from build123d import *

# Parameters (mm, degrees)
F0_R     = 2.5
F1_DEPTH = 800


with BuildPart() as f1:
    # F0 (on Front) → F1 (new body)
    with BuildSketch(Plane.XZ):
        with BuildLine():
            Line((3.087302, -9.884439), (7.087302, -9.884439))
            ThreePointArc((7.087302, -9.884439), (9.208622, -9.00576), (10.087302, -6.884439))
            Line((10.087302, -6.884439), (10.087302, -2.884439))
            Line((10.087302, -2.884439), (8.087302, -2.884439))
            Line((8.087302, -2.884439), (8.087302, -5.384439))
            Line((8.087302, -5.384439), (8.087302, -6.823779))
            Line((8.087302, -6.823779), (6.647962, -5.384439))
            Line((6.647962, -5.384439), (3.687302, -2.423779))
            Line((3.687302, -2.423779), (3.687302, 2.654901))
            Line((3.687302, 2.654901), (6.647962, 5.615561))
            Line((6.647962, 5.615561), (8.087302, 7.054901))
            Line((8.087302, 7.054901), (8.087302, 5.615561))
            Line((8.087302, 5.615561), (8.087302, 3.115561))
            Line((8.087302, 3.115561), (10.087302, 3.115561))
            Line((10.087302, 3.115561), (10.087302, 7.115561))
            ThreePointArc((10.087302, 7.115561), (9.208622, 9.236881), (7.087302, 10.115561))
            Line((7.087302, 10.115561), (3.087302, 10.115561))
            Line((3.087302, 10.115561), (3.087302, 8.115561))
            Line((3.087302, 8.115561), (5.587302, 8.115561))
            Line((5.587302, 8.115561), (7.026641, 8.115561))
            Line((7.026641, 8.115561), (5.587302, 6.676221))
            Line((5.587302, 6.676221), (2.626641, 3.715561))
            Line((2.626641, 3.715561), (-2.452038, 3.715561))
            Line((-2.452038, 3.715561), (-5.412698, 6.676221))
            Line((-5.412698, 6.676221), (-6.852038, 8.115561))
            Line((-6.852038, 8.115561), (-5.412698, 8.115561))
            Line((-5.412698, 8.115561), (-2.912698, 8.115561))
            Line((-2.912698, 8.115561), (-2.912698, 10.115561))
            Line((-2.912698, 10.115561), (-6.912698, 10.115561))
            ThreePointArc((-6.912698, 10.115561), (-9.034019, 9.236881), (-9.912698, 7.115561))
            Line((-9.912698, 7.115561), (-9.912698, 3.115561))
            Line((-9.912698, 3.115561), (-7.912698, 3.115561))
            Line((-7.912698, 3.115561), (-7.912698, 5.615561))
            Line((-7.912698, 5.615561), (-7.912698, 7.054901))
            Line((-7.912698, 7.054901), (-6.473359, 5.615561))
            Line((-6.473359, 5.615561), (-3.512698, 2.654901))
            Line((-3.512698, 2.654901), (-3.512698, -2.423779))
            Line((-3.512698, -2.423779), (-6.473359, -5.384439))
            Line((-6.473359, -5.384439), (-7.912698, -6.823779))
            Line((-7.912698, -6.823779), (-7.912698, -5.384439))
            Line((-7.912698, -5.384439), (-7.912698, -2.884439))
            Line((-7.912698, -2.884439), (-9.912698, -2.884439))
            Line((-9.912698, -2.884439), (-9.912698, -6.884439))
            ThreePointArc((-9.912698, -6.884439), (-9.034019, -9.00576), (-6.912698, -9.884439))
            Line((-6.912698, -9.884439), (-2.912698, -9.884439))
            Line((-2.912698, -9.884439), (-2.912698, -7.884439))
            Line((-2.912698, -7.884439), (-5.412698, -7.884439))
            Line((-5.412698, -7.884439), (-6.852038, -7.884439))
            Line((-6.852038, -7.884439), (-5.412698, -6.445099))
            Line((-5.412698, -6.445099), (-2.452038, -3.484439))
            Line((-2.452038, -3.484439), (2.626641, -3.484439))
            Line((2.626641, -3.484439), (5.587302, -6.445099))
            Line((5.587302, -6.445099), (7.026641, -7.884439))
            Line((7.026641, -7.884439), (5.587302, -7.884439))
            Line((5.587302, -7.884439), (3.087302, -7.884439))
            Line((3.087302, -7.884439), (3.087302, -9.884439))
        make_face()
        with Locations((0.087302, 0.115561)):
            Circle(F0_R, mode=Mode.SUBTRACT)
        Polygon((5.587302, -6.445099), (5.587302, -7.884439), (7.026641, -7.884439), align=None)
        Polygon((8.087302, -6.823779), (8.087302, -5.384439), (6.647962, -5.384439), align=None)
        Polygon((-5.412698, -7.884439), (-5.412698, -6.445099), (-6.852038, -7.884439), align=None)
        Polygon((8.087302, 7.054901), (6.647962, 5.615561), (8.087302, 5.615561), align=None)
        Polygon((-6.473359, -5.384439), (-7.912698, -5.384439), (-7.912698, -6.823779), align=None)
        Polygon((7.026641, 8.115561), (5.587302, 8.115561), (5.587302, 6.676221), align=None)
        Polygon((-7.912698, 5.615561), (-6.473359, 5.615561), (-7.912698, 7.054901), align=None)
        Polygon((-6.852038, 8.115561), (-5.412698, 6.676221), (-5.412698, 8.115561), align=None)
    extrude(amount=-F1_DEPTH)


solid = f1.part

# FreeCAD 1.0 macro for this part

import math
import FreeCAD as App
import Part
import Sketcher
Q = App.Units.Quantity

doc = App.newDocument("Part")
body = doc.addObject("PartDesign::Body", "Body")

# Sketch on XZ plane
sketch1 = body.newObject("Sketcher::SketchObject", "Sketch")
sketch1.AttachmentSupport = (doc.getObject("XZ_Plane"), [""])
sketch1.MapMode = "FlatFace"
sketch1.addGeometry(Part.LineSegment(App.Vector(3.1, -9.9, 0), App.Vector(7.1, -9.9, 0)), False)
sketch1.addGeometry(Part.ArcOfCircle(Part.Circle(App.Vector(7.1, -6.9, 0), App.Vector(0, 0, 1), 3), math.radians(-90), math.radians(0)), False)
sketch1.addGeometry(Part.LineSegment(App.Vector(10.1, -6.9, 0), App.Vector(10.1, -2.9, 0)), False)
sketch1.addGeometry(Part.LineSegment(App.Vector(10.1, -2.9, 0), App.Vector(8.1, -2.9, 0)), False)
sketch1.addGeometry(Part.LineSegment(App.Vector(8.1, -2.9, 0), App.Vector(8.1, -5.4, 0)), False)
sketch1.addGeometry(Part.LineSegment(App.Vector(8.1, -5.4, 0), App.Vector(6.6, -5.4, 0)), False)
sketch1.addGeometry(Part.LineSegment(App.Vector(6.6, -5.4, 0), App.Vector(3.7, -2.4, 0)), False)
sketch1.addGeometry(Part.LineSegment(App.Vector(3.7, -2.4, 0), App.Vector(3.7, 2.7, 0)), False)
sketch1.addGeometry(Part.LineSegment(App.Vector(3.7, 2.7, 0), App.Vector(6.6, 5.6, 0)), False)
sketch1.addGeometry(Part.LineSegment(App.Vector(6.6, 5.6, 0), App.Vector(8.1, 5.6, 0)), False)
sketch1.addGeometry(Part.LineSegment(App.Vector(8.1, 5.6, 0), App.Vector(8.1, 3.1, 0)), False)
sketch1.addGeometry(Part.LineSegment(App.Vector(8.1, 3.1, 0), App.Vector(10.1, 3.1, 0)), False)
sketch1.addGeometry(Part.LineSegment(App.Vector(10.1, 3.1, 0), App.Vector(10.1, 7.1, 0)), False)
sketch1.addGeometry(Part.ArcOfCircle(Part.Circle(App.Vector(7.1, 7.1, 0), App.Vector(0, 0, 1), 3), math.radians(0), math.radians(90)), False)
sketch1.addGeometry(Part.LineSegment(App.Vector(7.1, 10.1, 0), App.Vector(3.1, 10.1, 0)), False)
sketch1.addGeometry(Part.LineSegment(App.Vector(3.1, 10.1, 0), App.Vector(3.1, 8.1, 0)), False)
sketch1.addGeometry(Part.LineSegment(App.Vector(3.1, 8.1, 0), App.Vector(5.6, 8.1, 0)), False)
sketch1.addGeometry(Part.LineSegment(App.Vector(5.6, 8.1, 0), App.Vector(5.6, 6.7, 0)), False)
sketch1.addGeometry(Part.LineSegment(App.Vector(5.6, 6.7, 0), App.Vector(2.6, 3.7, 0)), False)
sketch1.addGeometry(Part.LineSegment(App.Vector(2.6, 3.7, 0), App.Vector(-2.5, 3.7, 0)), False)
sketch1.addGeometry(Part.LineSegment(App.Vector(-2.5, 3.7, 0), App.Vector(-5.4, 6.7, 0)), False)
sketch1.addGeometry(Part.LineSegment(App.Vector(-5.4, 6.7, 0), App.Vector(-5.4, 8.1, 0)), False)
sketch1.addGeometry(Part.LineSegment(App.Vector(-5.4, 8.1, 0), App.Vector(-2.9, 8.1, 0)), False)
sketch1.addGeometry(Part.LineSegment(App.Vector(-2.9, 8.1, 0), App.Vector(-2.9, 10.1, 0)), False)
sketch1.addGeometry(Part.LineSegment(App.Vector(-2.9, 10.1, 0), App.Vector(-6.9, 10.1, 0)), False)
sketch1.addGeometry(Part.ArcOfCircle(Part.Circle(App.Vector(-6.9, 7.1, 0), App.Vector(0, 0, 1), 3), math.radians(90), math.radians(180)), False)
sketch1.addGeometry(Part.LineSegment(App.Vector(-9.9, 7.1, 0), App.Vector(-9.9, 3.1, 0)), False)
sketch1.addGeometry(Part.LineSegment(App.Vector(-9.9, 3.1, 0), App.Vector(-7.9, 3.1, 0)), False)
sketch1.addGeometry(Part.LineSegment(App.Vector(-7.9, 3.1, 0), App.Vector(-7.9, 5.6, 0)), False)
sketch1.addGeometry(Part.LineSegment(App.Vector(-7.9, 5.6, 0), App.Vector(-6.5, 5.6, 0)), False)
sketch1.addGeometry(Part.LineSegment(App.Vector(-6.5, 5.6, 0), App.Vector(-3.5, 2.7, 0)), False)
sketch1.addGeometry(Part.LineSegment(App.Vector(-3.5, 2.7, 0), App.Vector(-3.5, -2.4, 0)), False)
sketch1.addGeometry(Part.LineSegment(App.Vector(-3.5, -2.4, 0), App.Vector(-6.5, -5.4, 0)), False)
sketch1.addGeometry(Part.LineSegment(App.Vector(-6.5, -5.4, 0), App.Vector(-7.9, -5.4, 0)), False)
sketch1.addGeometry(Part.LineSegment(App.Vector(-7.9, -5.4, 0), App.Vector(-7.9, -2.9, 0)), False)
sketch1.addGeometry(Part.LineSegment(App.Vector(-7.9, -2.9, 0), App.Vector(-9.9, -2.9, 0)), False)
sketch1.addGeometry(Part.LineSegment(App.Vector(-9.9, -2.9, 0), App.Vector(-9.9, -6.9, 0)), False)
sketch1.addGeometry(Part.ArcOfCircle(Part.Circle(App.Vector(-6.9, -6.9, 0), App.Vector(0, 0, 1), 3), math.radians(180), math.radians(270)), False)
sketch1.addGeometry(Part.LineSegment(App.Vector(-6.9, -9.9, 0), App.Vector(-2.9, -9.9, 0)), False)
sketch1.addGeometry(Part.LineSegment(App.Vector(-2.9, -9.9, 0), App.Vector(-2.9, -7.9, 0)), False)
sketch1.addGeometry(Part.LineSegment(App.Vector(-2.9, -7.9, 0), App.Vector(-5.4, -7.9, 0)), False)
sketch1.addGeometry(Part.LineSegment(App.Vector(-5.4, -7.9, 0), App.Vector(-5.4, -6.4, 0)), False)
sketch1.addGeometry(Part.LineSegment(App.Vector(-5.4, -6.4, 0), App.Vector(-2.5, -3.5, 0)), False)
sketch1.addGeometry(Part.LineSegment(App.Vector(-2.5, -3.5, 0), App.Vector(2.6, -3.5, 0)), False)
sketch1.addGeometry(Part.LineSegment(App.Vector(2.6, -3.5, 0), App.Vector(5.6, -6.4, 0)), False)
sketch1.addGeometry(Part.LineSegment(App.Vector(5.6, -6.4, 0), App.Vector(5.6, -7.9, 0)), False)
sketch1.addGeometry(Part.LineSegment(App.Vector(5.6, -7.9, 0), App.Vector(3.1, -7.9, 0)), False)
sketch1.addGeometry(Part.LineSegment(App.Vector(3.1, -7.9, 0), App.Vector(3.1, -9.9, 0)), False)
sketch1.addGeometry(Part.Circle(App.Vector(0.1, 0.1, 0), App.Vector(0, 0, 1), 2.5), False)
sketch1.addConstraint(Sketcher.Constraint("Tangent", 0, 2, 1, 1))
sketch1.addConstraint(Sketcher.Constraint("Tangent", 1, 2, 2, 1))
sketch1.addConstraint(Sketcher.Constraint("Coincident", 2, 2, 3, 1))
sketch1.addConstraint(Sketcher.Constraint("Coincident", 3, 2, 4, 1))
sketch1.addConstraint(Sketcher.Constraint("Coincident", 4, 2, 5, 1))
sketch1.addConstraint(Sketcher.Constraint("Coincident", 5, 2, 6, 1))
sketch1.addConstraint(Sketcher.Constraint("Coincident", 6, 2, 7, 1))
sketch1.addConstraint(Sketcher.Constraint("Coincident", 7, 2, 8, 1))
sketch1.addConstraint(Sketcher.Constraint("Coincident", 8, 2, 9, 1))
sketch1.addConstraint(Sketcher.Constraint("Coincident", 9, 2, 10, 1))
sketch1.addConstraint(Sketcher.Constraint("Coincident", 10, 2, 11, 1))
sketch1.addConstraint(Sketcher.Constraint("Coincident", 11, 2, 12, 1))
sketch1.addConstraint(Sketcher.Constraint("Tangent", 12, 2, 13, 1))
sketch1.addConstraint(Sketcher.Constraint("Tangent", 13, 2, 14, 1))
sketch1.addConstraint(Sketcher.Constraint("Coincident", 14, 2, 15, 1))
sketch1.addConstraint(Sketcher.Constraint("Coincident", 15, 2, 16, 1))
sketch1.addConstraint(Sketcher.Constraint("Coincident", 16, 2, 17, 1))
sketch1.addConstraint(Sketcher.Constraint("Coincident", 17, 2, 18, 1))
sketch1.addConstraint(Sketcher.Constraint("Coincident", 18, 2, 19, 1))
sketch1.addConstraint(Sketcher.Constraint("Coincident", 19, 2, 20, 1))
sketch1.addConstraint(Sketcher.Constraint("Coincident", 20, 2, 21, 1))
sketch1.addConstraint(Sketcher.Constraint("Coincident", 21, 2, 22, 1))
sketch1.addConstraint(Sketcher.Constraint("Coincident", 22, 2, 23, 1))
sketch1.addConstraint(Sketcher.Constraint("Coincident", 23, 2, 24, 1))
sketch1.addConstraint(Sketcher.Constraint("Tangent", 24, 2, 25, 1))
sketch1.addConstraint(Sketcher.Constraint("Tangent", 25, 2, 26, 1))
sketch1.addConstraint(Sketcher.Constraint("Coincident", 26, 2, 27, 1))
sketch1.addConstraint(Sketcher.Constraint("Coincident", 27, 2, 28, 1))
sketch1.addConstraint(Sketcher.Constraint("Coincident", 28, 2, 29, 1))
sketch1.addConstraint(Sketcher.Constraint("Coincident", 29, 2, 30, 1))
sketch1.addConstraint(Sketcher.Constraint("Coincident", 30, 2, 31, 1))
sketch1.addConstraint(Sketcher.Constraint("Coincident", 31, 2, 32, 1))
sketch1.addConstraint(Sketcher.Constraint("Coincident", 32, 2, 33, 1))
sketch1.addConstraint(Sketcher.Constraint("Coincident", 33, 2, 34, 1))
sketch1.addConstraint(Sketcher.Constraint("Coincident", 34, 2, 35, 1))
sketch1.addConstraint(Sketcher.Constraint("Coincident", 35, 2, 36, 1))
sketch1.addConstraint(Sketcher.Constraint("Tangent", 36, 2, 37, 1))
sketch1.addConstraint(Sketcher.Constraint("Tangent", 37, 2, 38, 1))
sketch1.addConstraint(Sketcher.Constraint("Coincident", 38, 2, 39, 1))
sketch1.addConstraint(Sketcher.Constraint("Coincident", 39, 2, 40, 1))
sketch1.addConstraint(Sketcher.Constraint("Coincident", 40, 2, 41, 1))
sketch1.addConstraint(Sketcher.Constraint("Coincident", 41, 2, 42, 1))
sketch1.addConstraint(Sketcher.Constraint("Coincident", 42, 2, 43, 1))
sketch1.addConstraint(Sketcher.Constraint("Coincident", 43, 2, 44, 1))
sketch1.addConstraint(Sketcher.Constraint("Coincident", 44, 2, 45, 1))
sketch1.addConstraint(Sketcher.Constraint("Coincident", 45, 2, 46, 1))
sketch1.addConstraint(Sketcher.Constraint("Coincident", 46, 2, 47, 1))
sketch1.addConstraint(Sketcher.Constraint("Coincident", 47, 2, 0, 1))
sketch1.addConstraint(Sketcher.Constraint("Horizontal", 0))
sketch1.addConstraint(Sketcher.Constraint("Vertical", 2))
sketch1.addConstraint(Sketcher.Constraint("Horizontal", 3))
sketch1.addConstraint(Sketcher.Constraint("Vertical", 4))
sketch1.addConstraint(Sketcher.Constraint("Horizontal", 5))
sketch1.addConstraint(Sketcher.Constraint("Vertical", 7))
sketch1.addConstraint(Sketcher.Constraint("Horizontal", 9))
sketch1.addConstraint(Sketcher.Constraint("Vertical", 10))
sketch1.addConstraint(Sketcher.Constraint("Horizontal", 11))
sketch1.addConstraint(Sketcher.Constraint("Vertical", 12))
sketch1.addConstraint(Sketcher.Constraint("Horizontal", 14))
sketch1.addConstraint(Sketcher.Constraint("Vertical", 15))
sketch1.addConstraint(Sketcher.Constraint("Horizontal", 16))
sketch1.addConstraint(Sketcher.Constraint("Vertical", 17))
sketch1.addConstraint(Sketcher.Constraint("Horizontal", 19))
sketch1.addConstraint(Sketcher.Constraint("Vertical", 21))
sketch1.addConstraint(Sketcher.Constraint("Horizontal", 22))
sketch1.addConstraint(Sketcher.Constraint("Vertical", 23))
sketch1.addConstraint(Sketcher.Constraint("Horizontal", 24))
sketch1.addConstraint(Sketcher.Constraint("Vertical", 26))
sketch1.addConstraint(Sketcher.Constraint("Horizontal", 27))
sketch1.addConstraint(Sketcher.Constraint("Vertical", 28))
sketch1.addConstraint(Sketcher.Constraint("Horizontal", 29))
sketch1.addConstraint(Sketcher.Constraint("Vertical", 31))
sketch1.addConstraint(Sketcher.Constraint("Horizontal", 33))
sketch1.addConstraint(Sketcher.Constraint("Vertical", 34))
sketch1.addConstraint(Sketcher.Constraint("Horizontal", 35))
sketch1.addConstraint(Sketcher.Constraint("Vertical", 36))
sketch1.addConstraint(Sketcher.Constraint("Horizontal", 38))
sketch1.addConstraint(Sketcher.Constraint("Vertical", 39))
sketch1.addConstraint(Sketcher.Constraint("Horizontal", 40))
sketch1.addConstraint(Sketcher.Constraint("Vertical", 41))
sketch1.addConstraint(Sketcher.Constraint("Horizontal", 43))
sketch1.addConstraint(Sketcher.Constraint("Vertical", 45))
sketch1.addConstraint(Sketcher.Constraint("Horizontal", 46))
sketch1.addConstraint(Sketcher.Constraint("Vertical", 47))
sketch1.addConstraint(Sketcher.Constraint("Equal", 1, 13))
sketch1.addConstraint(Sketcher.Constraint("Equal", 13, 25))
sketch1.addConstraint(Sketcher.Constraint("Equal", 25, 37))
sketch1.addConstraint(Sketcher.Constraint("Perpendicular", 6, 8))
sketch1.addConstraint(Sketcher.Constraint("Parallel", 8, 18))
sketch1.addConstraint(Sketcher.Constraint("Perpendicular", 18, 20))
sketch1.addConstraint(Sketcher.Constraint("Parallel", 20, 30))
sketch1.addConstraint(Sketcher.Constraint("Perpendicular", 30, 32))
sketch1.addConstraint(Sketcher.Constraint("Parallel", 32, 42))
sketch1.addConstraint(Sketcher.Constraint("Perpendicular", 42, 44))
sketch1.addConstraint(Sketcher.Constraint("Horizontal", 13, 3, 25, 3))
sketch1.addConstraint(Sketcher.Constraint("Horizontal", 1, 3, 37, 3))
sketch1.addConstraint(Sketcher.Constraint("Horizontal", 17, 2, 20, 2))
sketch1.addConstraint(Sketcher.Constraint("Horizontal", 16, 2, 21, 2))
sketch1.addConstraint(Sketcher.Constraint("Horizontal", 11, 2, 26, 2))
sketch1.addConstraint(Sketcher.Constraint("Horizontal", 9, 2, 28, 2))
sketch1.addConstraint(Sketcher.Constraint("Horizontal", 7, 2, 30, 2))
sketch1.addConstraint(Sketcher.Constraint("Horizontal", 6, 2, 31, 2))
sketch1.addConstraint(Sketcher.Constraint("Horizontal", 5, 2, 32, 2))
sketch1.addConstraint(Sketcher.Constraint("Horizontal", 3, 2, 34, 2))
sketch1.addConstraint(Sketcher.Constraint("Horizontal", 41, 2, 44, 2))
sketch1.addConstraint(Sketcher.Constraint("Horizontal", 40, 2, 45, 2))
sketch1.addConstraint(Sketcher.Constraint("Vertical", 1, 3, 13, 3))
sketch1.addConstraint(Sketcher.Constraint("Vertical", 25, 3, 37, 3))
sketch1.addConstraint(Sketcher.Constraint("Vertical", 5, 2, 8, 2))
sketch1.addConstraint(Sketcher.Constraint("Vertical", 4, 2, 9, 2))
sketch1.addConstraint(Sketcher.Constraint("Vertical", 29, 2, 32, 2))
sketch1.addConstraint(Sketcher.Constraint("Vertical", 28, 2, 33, 2))
sketch1.addConstraint(Sketcher.Constraint("Vertical", 23, 2, 38, 2))
sketch1.addConstraint(Sketcher.Constraint("Vertical", 21, 2, 40, 2))
sketch1.addConstraint(Sketcher.Constraint("Vertical", 19, 2, 42, 2))
sketch1.addConstraint(Sketcher.Constraint("Vertical", 18, 2, 43, 2))
sketch1.addConstraint(Sketcher.Constraint("Vertical", 15, 2, 46, 2))
sketch1.addConstraint(Sketcher.Constraint("Equal", 16, 22))
sketch1.addConstraint(Sketcher.Constraint("Equal", 14, 24))
sketch1.addConstraint(Sketcher.Constraint("Equal", 11, 27))
sketch1.addConstraint(Sketcher.Constraint("Equal", 9, 29))
sketch1.addConstraint(Sketcher.Constraint("Equal", 38, 2))
sketch1.addConstraint(Sketcher.Constraint("Equal", 46, 4))
sketch1.addConstraint(Sketcher.Constraint("Equal", 43, 7))
sketch1.addConstraint(Sketcher.Constraint("Equal", 4, 10))
sketch1.addConstraint(Sketcher.Constraint("Equal", 2, 12))
sketch1.addConstraint(Sketcher.Constraint("Equal", 35, 15))
sketch1.addConstraint(Sketcher.Constraint("Equal", 33, 17))
sketch1.addConstraint(Sketcher.Constraint("Equal", 23, 39))
sketch1.addConstraint(Sketcher.Constraint("Equal", 21, 41))
sketch1.addConstraint(Sketcher.Constraint("Equal", 8, 18))
sketch1.addConstraint(Sketcher.Constraint("Diameter", 48, Q("5 mm")))
sketch1.addConstraint(Sketcher.Constraint("Radius", 1, Q("2.999999 mm")))
sketch1.addConstraint(Sketcher.Constraint("DistanceX", 0, 1, 0, 2, Q("4 mm")))
sketch1.addConstraint(Sketcher.Constraint("DistanceX", 3, 2, 3, 1, Q("2 mm")))
sketch1.addConstraint(Sketcher.Constraint("DistanceX", 16, 1, 16, 2, Q("2.5 mm")))
sketch1.addConstraint(Sketcher.Constraint("DistanceY", 1, 3, 13, 3, Q("13.999999 mm")))
sketch1.addConstraint(Sketcher.Constraint("DistanceX", 48, 3, 13, 3, Q("6.999999 mm")))
sketch1.addConstraint(Sketcher.Constraint("DistanceY", 48, 3, 13, 3, Q("6.999999 mm")))
sketch1.addConstraint(Sketcher.Constraint("DistanceX", 48, 3, 6, 2, Q("3.6 mm")))
sketch1.addConstraint(Sketcher.Constraint("DistanceX", 5, 2, 5, 1, Q("1.43934 mm")))
sketch1.addConstraint(Sketcher.Constraint("DistanceX", -1, 1, 13, 3, Q("7.087301 mm")))
sketch1.addConstraint(Sketcher.Constraint("DistanceY", -1, 1, 7, 2, Q("2.654901 mm")))
pad1 = body.newObject("PartDesign::Pad", "Pad")
pad1.Profile = sketch1
pad1.Length = 800
pad1.Reversed = True

doc.recompute()
